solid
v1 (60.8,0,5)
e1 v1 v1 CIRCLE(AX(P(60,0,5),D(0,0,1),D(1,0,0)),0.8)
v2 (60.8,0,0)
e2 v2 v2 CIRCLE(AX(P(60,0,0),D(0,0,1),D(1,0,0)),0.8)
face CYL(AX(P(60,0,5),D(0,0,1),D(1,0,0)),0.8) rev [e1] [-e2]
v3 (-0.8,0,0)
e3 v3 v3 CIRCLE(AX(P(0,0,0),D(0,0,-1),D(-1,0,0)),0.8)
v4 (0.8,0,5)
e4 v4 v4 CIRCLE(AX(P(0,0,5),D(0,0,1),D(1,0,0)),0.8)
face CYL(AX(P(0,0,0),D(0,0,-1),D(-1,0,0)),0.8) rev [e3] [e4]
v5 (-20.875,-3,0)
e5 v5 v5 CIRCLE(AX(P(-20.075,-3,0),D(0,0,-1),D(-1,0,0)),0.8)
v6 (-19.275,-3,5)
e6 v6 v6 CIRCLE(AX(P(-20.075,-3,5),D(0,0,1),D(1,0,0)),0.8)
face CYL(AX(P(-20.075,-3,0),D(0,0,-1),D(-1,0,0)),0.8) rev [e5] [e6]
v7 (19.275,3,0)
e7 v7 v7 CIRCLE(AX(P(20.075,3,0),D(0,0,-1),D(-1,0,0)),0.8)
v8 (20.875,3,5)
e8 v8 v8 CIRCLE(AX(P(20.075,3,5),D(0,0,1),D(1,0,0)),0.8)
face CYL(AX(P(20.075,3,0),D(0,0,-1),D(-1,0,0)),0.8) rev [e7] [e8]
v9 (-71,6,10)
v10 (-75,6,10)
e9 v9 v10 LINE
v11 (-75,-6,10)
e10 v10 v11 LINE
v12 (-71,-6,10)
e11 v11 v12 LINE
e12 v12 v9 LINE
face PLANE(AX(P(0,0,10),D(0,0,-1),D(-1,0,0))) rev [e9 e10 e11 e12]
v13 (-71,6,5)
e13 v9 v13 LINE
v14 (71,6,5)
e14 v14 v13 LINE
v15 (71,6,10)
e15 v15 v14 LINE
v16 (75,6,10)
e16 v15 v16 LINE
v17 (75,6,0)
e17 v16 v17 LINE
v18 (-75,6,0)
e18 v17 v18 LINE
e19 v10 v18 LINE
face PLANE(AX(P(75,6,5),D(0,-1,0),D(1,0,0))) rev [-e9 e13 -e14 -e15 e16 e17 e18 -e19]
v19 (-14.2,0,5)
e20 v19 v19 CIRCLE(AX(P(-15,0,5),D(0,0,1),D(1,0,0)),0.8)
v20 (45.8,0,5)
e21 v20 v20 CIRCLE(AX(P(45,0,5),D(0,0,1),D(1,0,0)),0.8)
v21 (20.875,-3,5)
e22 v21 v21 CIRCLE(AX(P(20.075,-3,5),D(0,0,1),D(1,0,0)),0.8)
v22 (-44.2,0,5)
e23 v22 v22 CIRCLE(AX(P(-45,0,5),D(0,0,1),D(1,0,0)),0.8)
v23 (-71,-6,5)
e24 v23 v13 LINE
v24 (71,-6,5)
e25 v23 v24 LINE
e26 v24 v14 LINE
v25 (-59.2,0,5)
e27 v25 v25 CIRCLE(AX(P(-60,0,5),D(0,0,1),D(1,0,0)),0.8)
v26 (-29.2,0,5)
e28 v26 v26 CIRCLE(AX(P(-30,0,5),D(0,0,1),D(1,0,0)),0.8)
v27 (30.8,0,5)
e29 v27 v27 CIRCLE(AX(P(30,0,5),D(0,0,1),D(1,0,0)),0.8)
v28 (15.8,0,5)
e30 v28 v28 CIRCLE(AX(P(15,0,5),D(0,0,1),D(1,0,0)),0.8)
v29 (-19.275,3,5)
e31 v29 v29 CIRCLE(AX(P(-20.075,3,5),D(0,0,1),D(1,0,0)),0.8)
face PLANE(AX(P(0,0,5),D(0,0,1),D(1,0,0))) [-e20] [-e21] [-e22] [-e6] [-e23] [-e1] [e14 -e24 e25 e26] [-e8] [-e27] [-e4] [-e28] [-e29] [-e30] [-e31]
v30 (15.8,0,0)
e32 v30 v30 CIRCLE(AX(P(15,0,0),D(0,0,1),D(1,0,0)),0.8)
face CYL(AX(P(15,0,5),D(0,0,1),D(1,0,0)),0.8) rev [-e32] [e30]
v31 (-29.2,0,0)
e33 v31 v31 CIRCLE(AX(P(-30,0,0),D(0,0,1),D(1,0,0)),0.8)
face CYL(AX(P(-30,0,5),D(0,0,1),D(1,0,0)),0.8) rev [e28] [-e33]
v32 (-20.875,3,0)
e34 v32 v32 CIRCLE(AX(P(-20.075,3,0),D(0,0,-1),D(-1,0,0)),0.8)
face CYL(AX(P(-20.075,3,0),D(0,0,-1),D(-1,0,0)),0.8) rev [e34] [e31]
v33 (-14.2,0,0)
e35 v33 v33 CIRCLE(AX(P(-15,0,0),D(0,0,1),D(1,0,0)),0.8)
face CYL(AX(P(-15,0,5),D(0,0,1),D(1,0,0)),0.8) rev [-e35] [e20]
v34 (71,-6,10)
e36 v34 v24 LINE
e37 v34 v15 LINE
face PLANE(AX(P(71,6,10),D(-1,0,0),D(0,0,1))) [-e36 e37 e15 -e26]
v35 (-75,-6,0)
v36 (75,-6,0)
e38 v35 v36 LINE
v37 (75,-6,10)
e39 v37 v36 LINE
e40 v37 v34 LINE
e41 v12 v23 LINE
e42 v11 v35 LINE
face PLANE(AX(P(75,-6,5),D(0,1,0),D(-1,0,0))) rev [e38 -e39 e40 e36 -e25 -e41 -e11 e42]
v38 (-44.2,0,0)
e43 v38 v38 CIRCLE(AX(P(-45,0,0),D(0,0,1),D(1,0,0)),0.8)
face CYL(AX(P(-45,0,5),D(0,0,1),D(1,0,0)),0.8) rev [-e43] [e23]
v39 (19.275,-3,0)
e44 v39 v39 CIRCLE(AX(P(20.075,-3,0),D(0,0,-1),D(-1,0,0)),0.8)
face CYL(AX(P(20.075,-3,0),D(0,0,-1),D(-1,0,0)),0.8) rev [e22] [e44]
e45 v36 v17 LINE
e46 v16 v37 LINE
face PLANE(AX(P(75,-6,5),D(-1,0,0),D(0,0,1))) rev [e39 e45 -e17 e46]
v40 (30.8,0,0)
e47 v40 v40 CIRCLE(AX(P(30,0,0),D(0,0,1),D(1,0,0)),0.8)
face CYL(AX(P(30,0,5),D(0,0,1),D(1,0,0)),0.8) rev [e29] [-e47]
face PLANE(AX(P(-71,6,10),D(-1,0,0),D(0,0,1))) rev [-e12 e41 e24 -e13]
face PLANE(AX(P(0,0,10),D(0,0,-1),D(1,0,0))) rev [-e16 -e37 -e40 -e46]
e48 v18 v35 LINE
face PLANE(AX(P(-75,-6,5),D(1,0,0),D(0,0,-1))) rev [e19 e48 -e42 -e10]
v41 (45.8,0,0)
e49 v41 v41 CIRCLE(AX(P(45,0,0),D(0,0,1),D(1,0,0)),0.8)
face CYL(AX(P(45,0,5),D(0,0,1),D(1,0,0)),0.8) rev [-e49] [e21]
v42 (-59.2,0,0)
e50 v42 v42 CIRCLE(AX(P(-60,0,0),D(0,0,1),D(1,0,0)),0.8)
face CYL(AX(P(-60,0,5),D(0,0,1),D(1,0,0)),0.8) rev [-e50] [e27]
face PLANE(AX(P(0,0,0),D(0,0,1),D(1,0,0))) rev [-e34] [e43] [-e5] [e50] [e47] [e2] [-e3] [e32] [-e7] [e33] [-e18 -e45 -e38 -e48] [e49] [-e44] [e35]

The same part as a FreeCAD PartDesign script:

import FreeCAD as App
import Part
import Sketcher
from FreeCAD import Vector


def add_polygon(sketch, points):
    """Adds a closed chain of lines whose ends are joined by coincident constraints."""
    first, n = sketch.GeometryCount, len(points)
    for a, b in zip(points, points[1:] + points[:1]):
        sketch.addGeometry(Part.LineSegment(App.Vector(*a, 0), App.Vector(*b, 0)), False)
    for i in range(n):
        sketch.addConstraint(Sketcher.Constraint("Coincident", first + i, 2, first + (i + 1) % n, 1))

doc = App.newDocument("Part")
body = doc.addObject("PartDesign::Body", "Body")

# Sketch on XY plane
sketch1 = body.newObject("Sketcher::SketchObject", "Sketch")
sketch1.AttachmentSupport = (doc.getObject("XY_Plane"), [""])
sketch1.MapMode = "FlatFace"
add_polygon(sketch1, [(-75, 6), (-75, -6), (75, -6), (75, 6)])  # lines 0-3
sketch1.addConstraint([
    Sketcher.Constraint("Vertical", 0),
    Sketcher.Constraint("Horizontal", 1),
    Sketcher.Constraint("Vertical", 2),
    Sketcher.Constraint("Horizontal", 3),
    Sketcher.Constraint("Symmetric", 0, 2, 2, 2, -1, 1),
    Sketcher.Constraint("DistanceX", 1, 1, 1, 2, 150.0),
    Sketcher.Constraint("DistanceY", 0, 2, 0, 1, 12.0),
])
pad1 = body.newObject("PartDesign::Pad", "Pad")
pad1.Profile = sketch1
pad1.Length = 5

# Sketch on XY plane
sketch2 = body.newObject("Sketcher::SketchObject", "Sketch001")
sketch2.AttachmentSupport = (doc.getObject("XY_Plane"), [""])
sketch2.MapMode = "FlatFace"
sketch2.AttachmentOffset = App.Placement(Vector(0, 0, 5), App.Rotation())
add_polygon(sketch2, [(-75, 6), (-75, -6), (-71, -6), (-71, 6)])  # lines 0-3
sketch2.addConstraint([
    Sketcher.Constraint("Vertical", 0),
    Sketcher.Constraint("Horizontal", 1),
    Sketcher.Constraint("Vertical", 2),
    Sketcher.Constraint("Horizontal", 3),
    Sketcher.Constraint("DistanceX", 1, 1, 1, 2, 4.0),
    Sketcher.Constraint("DistanceY", 0, 2, 0, 1, 12.0),
    Sketcher.Constraint("DistanceX", 0, 2, -1, 1, 75.0),
    Sketcher.Constraint("DistanceY", 0, 2, -1, 1, 6.0),
])
pad2 = body.newObject("PartDesign::Pad", "Pad001")
pad2.Profile = sketch2
pad2.Length = 5
doc.recompute()

mirrored = body.newObject("PartDesign::Mirrored", "Mirrored")
mirrored.Originals = [pad2]
mirrored.MirrorPlane = (doc.getObject("YZ_Plane"), [""])
body.Tip = mirrored

# Sketch on XY plane
sketch3 = body.newObject("Sketcher::SketchObject", "Sketch002")
sketch3.AttachmentSupport = (doc.getObject("XY_Plane"), [""])
sketch3.MapMode = "FlatFace"
sketch3.addGeometry([
    Part.Circle(Vector(20.1, -3, 0), Vector(0, 0, 1), 0.8),
    Part.Circle(Vector(20.1, 3, 0), Vector(0, 0, 1), 0.8),
    Part.Circle(Vector(-20.1, -3, 0), Vector(0, 0, 1), 0.8),
    Part.Circle(Vector(-20.1, 3, 0), Vector(0, 0, 1), 0.8),
], False)
sketch3.addConstraint([
    Sketcher.Constraint("Equal", 0, 1),
    Sketcher.Constraint("Equal", 1, 2),
    Sketcher.Constraint("Equal", 2, 3),
    Sketcher.Constraint("Symmetric", 1, 3, 2, 3, -1, 1),
    Sketcher.Constraint("Symmetric", 0, 3, 3, 3, -1, 1),
    Sketcher.Constraint("Symmetric", 0, 3, 2, 3, -2),
    Sketcher.Constraint("Diameter", 0, 1.6),
    Sketcher.Constraint("DistanceY", 0, 3, -1, 1, 3.0),
    Sketcher.Constraint("DistanceX", 2, 3, 0, 3, 40.15),
])
doc.recompute()
hole = body.newObject("PartDesign::Hole", "Hole")
hole.Profile = sketch3
hole.ThreadType = "None"
hole.Diameter = 1.6
hole.DepthType = "Dimension"
hole.Depth = 5.2
hole.DrillPoint = "Angled"
hole.DrillPointAngle = 118
hole.Reversed = True

# Sketch on XY plane
sketch4 = body.newObject("Sketcher::SketchObject", "Sketch003")
sketch4.AttachmentSupport = (doc.getObject("XY_Plane"), [""])
sketch4.MapMode = "FlatFace"
sketch4.addGeometry(Part.Circle(Vector(0, 0, 0), Vector(0, 0, 1), 0.8), False)
sketch4.addConstraint([
    Sketcher.Constraint("Coincident", 0, 3, -1, 1),
    Sketcher.Constraint("Diameter", 0, 1.6),
])
doc.recompute()
hole2 = body.newObject("PartDesign::Hole", "Hole001")
hole2.Profile = sketch4
hole2.ThreadType = "None"
hole2.Diameter = 1.6
hole2.DepthType = "ThroughAll"
hole2.Reversed = True

# Sketch on XY plane
sketch5 = body.newObject("Sketcher::SketchObject", "Sketch004")
sketch5.AttachmentSupport = (doc.getObject("XY_Plane"), [""])
sketch5.MapMode = "FlatFace"
sketch5.AttachmentOffset = App.Placement(Vector(0, 0, 5), App.Rotation())
sketch5.addGeometry([
    Part.Circle(Vector(0, 0, 0), Vector(0, 0, 1), 0.8),  # 0
    Part.Circle(Vector(15, 0, 0), Vector(0, 0, 1), 0.8),  # 1
    Part.Circle(Vector(30, 0, 0), Vector(0, 0, 1), 0.8),  # 2
    Part.Circle(Vector(-30, 0, 0), Vector(0, 0, 1), 0.8),  # 3
    Part.Circle(Vector(-45, 0, 0), Vector(0, 0, 1), 0.8),  # 4
    Part.Circle(Vector(-60, 0, 0), Vector(0, 0, 1), 0.8),  # 5
    Part.Circle(Vector(-15, 0, 0), Vector(0, 0, 1), 0.8),  # 6
    Part.Circle(Vector(45, 0, 0), Vector(0, 0, 1), 0.8),  # 7
    Part.Circle(Vector(60, 0, 0), Vector(0, 0, 1), 0.8),  # 8
], False)
sketch5.addConstraint([
    Sketcher.Constraint("Coincident", 0, 3, -1, 1),
    Sketcher.Constraint("Equal", 0, 1),
    Sketcher.Constraint("Equal", 1, 2),
    Sketcher.Constraint("Equal", 2, 3),
    Sketcher.Constraint("Equal", 3, 4),
    Sketcher.Constraint("Equal", 4, 5),
    Sketcher.Constraint("Equal", 5, 6),
    Sketcher.Constraint("Equal", 6, 7),
    Sketcher.Constraint("Equal", 7, 8),
    Sketcher.Constraint("Symmetric", 2, 3, 3, 3, -1, 1),
    Sketcher.Constraint("Symmetric", 1, 3, 6, 3, -1, 1),
    Sketcher.Constraint("Symmetric", 4, 3, 7, 3, -1, 1),
    Sketcher.Constraint("Symmetric", 5, 3, 8, 3, -1, 1),
    Sketcher.Constraint("PointOnObject", 1, 3, -1),
    Sketcher.Constraint("PointOnObject", 2, 3, -1),
    Sketcher.Constraint("PointOnObject", 4, 3, -1),
    Sketcher.Constraint("PointOnObject", 5, 3, -1),
    Sketcher.Constraint("Diameter", 0, 1.6),
    Sketcher.Constraint("DistanceX", -1, 1, 1, 3, 15.0),
    Sketcher.Constraint("DistanceX", -1, 1, 2, 3, 30.0),
    Sketcher.Constraint("DistanceX", 4, 3, -1, 1, 45.0),
    Sketcher.Constraint("DistanceX", 5, 3, -1, 1, 60.0),
])
doc.recompute()
hole3 = body.newObject("PartDesign::Hole", "Hole002")
hole3.Profile = sketch5
hole3.ThreadType = "None"
hole3.Diameter = 1.6
hole3.DepthType = "ThroughAll"

doc.recompute()
